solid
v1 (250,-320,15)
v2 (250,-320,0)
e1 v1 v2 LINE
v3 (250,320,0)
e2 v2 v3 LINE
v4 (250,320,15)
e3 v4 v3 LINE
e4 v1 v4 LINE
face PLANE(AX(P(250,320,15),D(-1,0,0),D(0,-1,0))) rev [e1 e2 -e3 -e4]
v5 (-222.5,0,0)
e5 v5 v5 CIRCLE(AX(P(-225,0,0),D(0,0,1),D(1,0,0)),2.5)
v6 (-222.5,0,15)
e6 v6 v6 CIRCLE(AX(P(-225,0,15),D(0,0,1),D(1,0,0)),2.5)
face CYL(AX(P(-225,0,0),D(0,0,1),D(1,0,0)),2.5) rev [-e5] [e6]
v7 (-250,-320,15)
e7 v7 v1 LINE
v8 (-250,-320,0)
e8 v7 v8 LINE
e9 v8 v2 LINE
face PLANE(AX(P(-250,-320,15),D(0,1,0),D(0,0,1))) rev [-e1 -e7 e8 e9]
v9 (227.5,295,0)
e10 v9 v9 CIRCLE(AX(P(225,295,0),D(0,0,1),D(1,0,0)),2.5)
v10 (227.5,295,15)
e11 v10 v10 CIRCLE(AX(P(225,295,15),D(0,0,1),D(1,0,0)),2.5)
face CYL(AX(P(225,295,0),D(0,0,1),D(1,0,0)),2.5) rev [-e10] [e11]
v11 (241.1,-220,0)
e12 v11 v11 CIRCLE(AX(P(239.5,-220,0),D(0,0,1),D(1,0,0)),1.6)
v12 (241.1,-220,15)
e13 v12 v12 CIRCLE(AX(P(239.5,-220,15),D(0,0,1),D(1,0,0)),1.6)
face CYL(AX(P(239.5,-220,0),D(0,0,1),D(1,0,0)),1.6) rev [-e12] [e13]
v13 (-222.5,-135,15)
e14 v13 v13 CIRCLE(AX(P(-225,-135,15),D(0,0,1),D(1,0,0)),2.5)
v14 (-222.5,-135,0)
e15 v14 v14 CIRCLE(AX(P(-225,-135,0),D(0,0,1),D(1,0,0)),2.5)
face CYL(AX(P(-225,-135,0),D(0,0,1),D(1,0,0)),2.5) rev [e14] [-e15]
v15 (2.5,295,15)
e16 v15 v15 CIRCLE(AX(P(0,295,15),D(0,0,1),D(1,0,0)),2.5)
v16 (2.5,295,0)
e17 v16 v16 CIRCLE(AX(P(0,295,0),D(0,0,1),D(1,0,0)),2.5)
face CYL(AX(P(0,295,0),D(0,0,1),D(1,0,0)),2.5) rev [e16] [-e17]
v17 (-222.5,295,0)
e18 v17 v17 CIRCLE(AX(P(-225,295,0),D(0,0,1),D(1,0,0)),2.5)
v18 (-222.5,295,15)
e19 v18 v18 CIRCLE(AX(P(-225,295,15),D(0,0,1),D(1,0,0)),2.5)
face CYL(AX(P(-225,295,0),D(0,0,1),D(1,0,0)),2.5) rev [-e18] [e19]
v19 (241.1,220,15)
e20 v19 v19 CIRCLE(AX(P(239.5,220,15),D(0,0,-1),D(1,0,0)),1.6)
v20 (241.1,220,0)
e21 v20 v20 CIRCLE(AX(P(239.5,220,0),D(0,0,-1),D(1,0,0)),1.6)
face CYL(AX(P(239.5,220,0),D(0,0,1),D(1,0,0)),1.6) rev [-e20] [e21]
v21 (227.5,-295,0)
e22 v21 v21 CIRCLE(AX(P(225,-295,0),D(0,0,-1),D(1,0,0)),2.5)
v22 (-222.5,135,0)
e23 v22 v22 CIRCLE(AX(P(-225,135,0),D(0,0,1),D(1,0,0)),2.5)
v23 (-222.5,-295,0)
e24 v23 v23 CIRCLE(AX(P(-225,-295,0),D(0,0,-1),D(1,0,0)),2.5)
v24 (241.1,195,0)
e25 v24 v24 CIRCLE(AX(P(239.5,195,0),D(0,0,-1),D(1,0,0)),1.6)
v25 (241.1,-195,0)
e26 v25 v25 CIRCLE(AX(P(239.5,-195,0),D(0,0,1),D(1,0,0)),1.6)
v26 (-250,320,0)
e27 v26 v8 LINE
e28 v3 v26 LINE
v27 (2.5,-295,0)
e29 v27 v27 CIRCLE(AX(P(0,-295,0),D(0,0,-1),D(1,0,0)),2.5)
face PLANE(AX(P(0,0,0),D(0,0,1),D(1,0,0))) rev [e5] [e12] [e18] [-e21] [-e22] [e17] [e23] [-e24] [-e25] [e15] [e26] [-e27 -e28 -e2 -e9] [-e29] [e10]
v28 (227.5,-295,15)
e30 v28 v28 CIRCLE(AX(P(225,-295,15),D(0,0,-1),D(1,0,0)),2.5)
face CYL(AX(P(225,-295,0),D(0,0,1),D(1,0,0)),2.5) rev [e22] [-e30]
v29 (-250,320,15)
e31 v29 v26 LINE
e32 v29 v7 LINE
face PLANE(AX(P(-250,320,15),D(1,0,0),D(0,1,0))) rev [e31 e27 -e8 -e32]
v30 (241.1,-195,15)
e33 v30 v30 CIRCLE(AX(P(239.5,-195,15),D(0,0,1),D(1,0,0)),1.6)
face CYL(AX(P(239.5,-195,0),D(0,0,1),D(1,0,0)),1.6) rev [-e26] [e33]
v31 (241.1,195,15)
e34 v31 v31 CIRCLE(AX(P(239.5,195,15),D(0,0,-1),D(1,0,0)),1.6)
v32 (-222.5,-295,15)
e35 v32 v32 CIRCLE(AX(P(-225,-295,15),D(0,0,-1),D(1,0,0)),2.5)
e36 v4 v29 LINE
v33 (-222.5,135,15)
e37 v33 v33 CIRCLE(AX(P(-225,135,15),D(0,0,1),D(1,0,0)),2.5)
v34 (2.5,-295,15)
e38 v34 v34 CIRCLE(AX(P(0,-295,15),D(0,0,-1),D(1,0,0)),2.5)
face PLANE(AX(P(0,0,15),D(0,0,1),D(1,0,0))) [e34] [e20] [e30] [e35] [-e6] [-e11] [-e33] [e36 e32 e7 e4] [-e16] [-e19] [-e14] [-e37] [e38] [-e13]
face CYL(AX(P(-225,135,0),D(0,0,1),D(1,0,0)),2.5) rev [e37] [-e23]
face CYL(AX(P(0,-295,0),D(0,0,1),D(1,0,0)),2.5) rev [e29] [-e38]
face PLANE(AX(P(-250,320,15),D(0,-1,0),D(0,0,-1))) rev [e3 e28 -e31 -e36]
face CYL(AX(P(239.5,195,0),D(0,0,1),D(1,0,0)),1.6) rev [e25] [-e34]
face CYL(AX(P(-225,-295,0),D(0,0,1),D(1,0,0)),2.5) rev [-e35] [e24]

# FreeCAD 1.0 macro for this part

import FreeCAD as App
import Part
import Sketcher
from FreeCAD import Vector
Q = App.Units.Quantity

doc = App.newDocument("Part")
params = doc.addObject("Spreadsheet::Sheet", "Params")
for row, (alias, value) in enumerate([
    ("sketch1_width", "500 mm"),
    ("sketch1_height", "640 mm"),
    ("pad1_length", "15 mm"),
    ("sketch2_diameter", "5 mm"),
    ("sketch3_diameter", "5 mm"),
    ("sketch4_diameter", "3.2 mm"),
], start=1):
    params.set(f"A{row}", alias)
    params.set(f"B{row}", "=" + value)
    params.setAlias(f"B{row}", alias)

body = doc.addObject("PartDesign::Body", "Body")

# Sketch on XY plane
sketch1 = body.newObject("Sketcher::SketchObject", "Sketch")
sketch1.AttachmentSupport = (doc.getObject("XY_Plane"), [""])
sketch1.MapMode = "FlatFace"
sketch1.addGeometry([
    Part.LineSegment(Vector(-250, 320, 0), Vector(-250, -320, 0)),
    Part.LineSegment(Vector(-250, -320, 0), Vector(250, -320, 0)),
    Part.LineSegment(Vector(250, -320, 0), Vector(250, 320, 0)),
    Part.LineSegment(Vector(250, 320, 0), Vector(-250, 320, 0)),
], False)
sketch1.addConstraint([
    Sketcher.Constraint("Coincident", 0, 2, 1, 1),
    Sketcher.Constraint("Coincident", 1, 2, 2, 1),
    Sketcher.Constraint("Coincident", 2, 2, 3, 1),
    Sketcher.Constraint("Coincident", 3, 2, 0, 1),
    Sketcher.Constraint("Vertical", 0),
    Sketcher.Constraint("Horizontal", 1),
    Sketcher.Constraint("Vertical", 2),
    Sketcher.Constraint("Horizontal", 3),
    Sketcher.Constraint("Symmetric", 0, 2, 2, 2, -1, 1),
    Sketcher.Constraint("DistanceX", 1, 1, 1, 2, Q("500 mm")),
    Sketcher.Constraint("DistanceY", 0, 2, 0, 1, Q("640 mm")),
])
sketch1.setExpression("Constraints[9]", "Params.sketch1_width")
sketch1.setExpression("Constraints[10]", "Params.sketch1_height")
pad1 = body.newObject("PartDesign::Pad", "Pad")
pad1.Profile = sketch1
pad1.setExpression("Length", "Params.pad1_length")

# Sketch on XY plane
sketch2 = body.newObject("Sketcher::SketchObject", "Sketch001")
sketch2.AttachmentSupport = (doc.getObject("XY_Plane"), [""])
sketch2.MapMode = "FlatFace"
sketch2.AttachmentOffset = App.Placement(Vector(0, 0, 15), App.Rotation())
sketch2.addGeometry([
    Part.Circle(Vector(-225, 135, 0), Vector(0, 0, 1), 2.5),
    Part.Circle(Vector(-225, 0, 0), Vector(0, 0, 1), 2.5),
    Part.Circle(Vector(-225, -135, 0), Vector(0, 0, 1), 2.5),
], False)
sketch2.addConstraint([
    Sketcher.Constraint("Equal", 0, 1),
    Sketcher.Constraint("Equal", 1, 2),
    Sketcher.Constraint("Symmetric", 0, 3, 2, 3, -1),
    Sketcher.Constraint("PointOnObject", 1, 3, -1),
    Sketcher.Constraint("Vertical", 0, 3, 1, 3),
    Sketcher.Constraint("Diameter", 0, Q("5 mm")),
    Sketcher.Constraint("DistanceX", 0, 3, -1, 1, Q("225 mm")),
    Sketcher.Constraint("DistanceY", -1, 1, 0, 3, Q("135 mm")),
])
sketch2.setExpression("Constraints[5]", "Params.sketch2_diameter")
pocket1 = body.newObject("PartDesign::Pocket", "Pocket")
pocket1.Profile = sketch2
pocket1.Type = "ThroughAll"
pocket1.Midplane = True

# Sketch on XY plane
sketch3 = body.newObject("Sketcher::SketchObject", "Sketch002")
sketch3.AttachmentSupport = (doc.getObject("XY_Plane"), [""])
sketch3.MapMode = "FlatFace"
sketch3.AttachmentOffset = App.Placement(Vector(0, 0, 15), App.Rotation())
sketch3.addGeometry([
    Part.Circle(Vector(0, 295, 0), Vector(0, 0, 1), 2.5),
    Part.Circle(Vector(-225, 295, 0), Vector(0, 0, 1), 2.5),
    Part.Circle(Vector(225, 295, 0), Vector(0, 0, 1), 2.5),
], False)
sketch3.addConstraint([
    Sketcher.Constraint("Equal", 0, 1),
    Sketcher.Constraint("Equal", 1, 2),
    Sketcher.Constraint("Symmetric", 1, 3, 2, 3, -2),
    Sketcher.Constraint("PointOnObject", 0, 3, -2),
    Sketcher.Constraint("Horizontal", 0, 3, 1, 3),
    Sketcher.Constraint("Diameter", 0, Q("5 mm")),
    Sketcher.Constraint("DistanceY", -1, 1, 0, 3, Q("295 mm")),
    Sketcher.Constraint("DistanceX", 1, 3, -1, 1, Q("225 mm")),
])
sketch3.setExpression("Constraints[5]", "Params.sketch3_diameter")
pocket2 = body.newObject("PartDesign::Pocket", "Pocket001")
pocket2.Profile = sketch3
pocket2.Type = "ThroughAll"
doc.recompute()

mirrored = body.newObject("PartDesign::Mirrored", "Mirrored")
mirrored.Originals = [pocket2]
mirrored.MirrorPlane = (doc.getObject("XZ_Plane"), [""])
body.Tip = mirrored

# Sketch on XY plane
sketch4 = body.newObject("Sketcher::SketchObject", "Sketch003")
sketch4.AttachmentSupport = (doc.getObject("XY_Plane"), [""])
sketch4.MapMode = "FlatFace"
sketch4.AttachmentOffset = App.Placement(Vector(0, 0, 15), App.Rotation())
sketch4.addGeometry([
    Part.Circle(Vector(239.5, -220, 0), Vector(0, 0, 1), 1.6),
    Part.Circle(Vector(239.5, -195, 0), Vector(0, 0, 1), 1.6),
], False)
sketch4.addConstraint([
    Sketcher.Constraint("Equal", 0, 1),
    Sketcher.Constraint("Vertical", 0, 3, 1, 3),
    Sketcher.Constraint("Diameter", 0, Q("3.2 mm")),
    Sketcher.Constraint("DistanceY", 0, 3, -1, 1, Q("220 mm")),
    Sketcher.Constraint("DistanceY", 1, 3, -1, 1, Q("195 mm")),
    Sketcher.Constraint("DistanceX", -1, 1, 0, 3, Q("239.5 mm")),
])
sketch4.setExpression("Constraints[2]", "Params.sketch4_diameter")
pocket3 = body.newObject("PartDesign::Pocket", "Pocket002")
pocket3.Profile = sketch4
pocket3.Type = "ThroughAll"
doc.recompute()

mirrored2 = body.newObject("PartDesign::Mirrored", "Mirrored001")
mirrored2.Originals = [pocket3]
mirrored2.MirrorPlane = (doc.getObject("XZ_Plane"), [""])
body.Tip = mirrored2

doc.recompute()
